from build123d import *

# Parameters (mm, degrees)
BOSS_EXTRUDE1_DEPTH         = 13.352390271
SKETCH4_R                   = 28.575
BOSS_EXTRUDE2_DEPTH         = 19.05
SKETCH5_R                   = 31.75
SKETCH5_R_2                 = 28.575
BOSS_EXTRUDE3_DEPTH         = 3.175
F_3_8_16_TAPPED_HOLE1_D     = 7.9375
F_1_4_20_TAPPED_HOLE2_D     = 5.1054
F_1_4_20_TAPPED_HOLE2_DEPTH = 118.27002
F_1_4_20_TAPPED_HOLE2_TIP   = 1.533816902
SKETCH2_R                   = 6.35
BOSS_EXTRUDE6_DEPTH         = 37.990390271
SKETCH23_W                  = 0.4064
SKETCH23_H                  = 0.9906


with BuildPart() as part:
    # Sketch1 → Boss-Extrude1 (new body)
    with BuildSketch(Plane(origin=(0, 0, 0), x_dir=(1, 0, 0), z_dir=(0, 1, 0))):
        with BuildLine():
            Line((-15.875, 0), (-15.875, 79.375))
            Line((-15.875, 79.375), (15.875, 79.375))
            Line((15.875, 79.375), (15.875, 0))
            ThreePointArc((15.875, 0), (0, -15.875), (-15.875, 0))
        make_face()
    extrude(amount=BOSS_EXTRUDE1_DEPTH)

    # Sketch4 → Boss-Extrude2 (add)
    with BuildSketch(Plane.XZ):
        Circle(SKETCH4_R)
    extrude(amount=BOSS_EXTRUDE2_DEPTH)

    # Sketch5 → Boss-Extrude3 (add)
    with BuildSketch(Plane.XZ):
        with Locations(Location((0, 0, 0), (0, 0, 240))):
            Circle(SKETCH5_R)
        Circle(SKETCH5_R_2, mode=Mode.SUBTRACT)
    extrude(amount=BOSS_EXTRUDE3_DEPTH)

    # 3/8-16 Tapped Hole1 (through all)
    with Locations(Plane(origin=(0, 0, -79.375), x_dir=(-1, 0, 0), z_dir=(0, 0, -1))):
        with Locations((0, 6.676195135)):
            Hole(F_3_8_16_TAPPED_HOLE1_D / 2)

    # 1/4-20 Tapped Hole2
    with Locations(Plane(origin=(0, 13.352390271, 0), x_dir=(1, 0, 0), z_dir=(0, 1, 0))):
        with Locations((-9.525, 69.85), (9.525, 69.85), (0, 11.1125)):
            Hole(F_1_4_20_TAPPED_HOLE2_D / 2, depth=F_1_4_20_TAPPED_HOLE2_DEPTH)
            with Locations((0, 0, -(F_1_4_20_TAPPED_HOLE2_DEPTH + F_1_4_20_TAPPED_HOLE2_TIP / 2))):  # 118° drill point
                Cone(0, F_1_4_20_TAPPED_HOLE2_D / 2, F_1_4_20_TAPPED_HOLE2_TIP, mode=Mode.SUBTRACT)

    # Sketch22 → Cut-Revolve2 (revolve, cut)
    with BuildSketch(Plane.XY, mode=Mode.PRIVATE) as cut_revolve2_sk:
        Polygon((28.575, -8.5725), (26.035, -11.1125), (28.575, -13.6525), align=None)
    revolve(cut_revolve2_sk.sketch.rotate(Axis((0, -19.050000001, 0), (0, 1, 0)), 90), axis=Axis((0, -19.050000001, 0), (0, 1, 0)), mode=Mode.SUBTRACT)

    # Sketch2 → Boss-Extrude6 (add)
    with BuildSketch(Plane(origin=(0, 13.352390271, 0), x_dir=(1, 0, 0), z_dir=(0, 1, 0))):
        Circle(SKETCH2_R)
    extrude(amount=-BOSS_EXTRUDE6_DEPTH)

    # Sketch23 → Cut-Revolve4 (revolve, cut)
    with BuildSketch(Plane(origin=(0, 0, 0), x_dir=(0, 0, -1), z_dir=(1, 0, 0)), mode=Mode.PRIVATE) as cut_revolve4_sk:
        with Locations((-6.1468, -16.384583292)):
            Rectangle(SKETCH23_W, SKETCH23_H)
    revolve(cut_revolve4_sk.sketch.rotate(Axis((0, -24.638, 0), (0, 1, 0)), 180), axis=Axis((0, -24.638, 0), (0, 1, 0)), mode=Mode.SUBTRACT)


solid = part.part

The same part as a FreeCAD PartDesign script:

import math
import FreeCAD as App
import Part
import Sketcher
Q = App.Units.Quantity

doc = App.newDocument("Part")
body = doc.addObject("PartDesign::Body", "Body")

# Sketch on XZ plane
sketch1 = doc.addObject("Sketcher::SketchObject", "Sketch")
body.addObject(sketch1)
sketch1.AttachmentSupport = (doc.XZ_Plane, [""])
sketch1.MapMode = "FlatFace"
sketch1.addGeometry(Part.LineSegment(App.Vector(-16, -79, 0), App.Vector(-16, 0, 0)), False)
sketch1.addGeometry(Part.ArcOfCircle(Part.Circle(App.Vector(0, 0, 0), App.Vector(0, 0, 1), 16), math.radians(0), math.radians(180)), False)
sketch1.addGeometry(Part.LineSegment(App.Vector(16, 0, 0), App.Vector(16, -79, 0)), False)
sketch1.addGeometry(Part.LineSegment(App.Vector(16, -79, 0), App.Vector(-16, -79, 0)), False)
sketch1.addConstraint(Sketcher.Constraint("Tangent", 0, 2, 1, 2))
sketch1.addConstraint(Sketcher.Constraint("Tangent", 1, 1, 2, 1))
sketch1.addConstraint(Sketcher.Constraint("Coincident", 2, 2, 3, 1))
sketch1.addConstraint(Sketcher.Constraint("Coincident", 3, 2, 0, 1))
sketch1.addConstraint(Sketcher.Constraint("Vertical", 0))
sketch1.addConstraint(Sketcher.Constraint("Vertical", 2))
sketch1.addConstraint(Sketcher.Constraint("Horizontal", 3))
sketch1.addConstraint(Sketcher.Constraint("Coincident", 1, 3, -1, 1))
sketch1.addConstraint(Sketcher.Constraint("Radius", 1, Q("0.625 in")))
sketch1.addConstraint(Sketcher.Constraint("DistanceY", 0, 1, 0, 2, Q("3.125 in")))
pad1 = doc.addObject("PartDesign::Pad", "Pad")
body.addObject(pad1)
pad1.Profile = sketch1
pad1.Length = 13.35239
pad1.Reversed = True

# Sketch on XZ plane
sketch2 = doc.addObject("Sketcher::SketchObject", "Sketch001")
body.addObject(sketch2)
sketch2.AttachmentSupport = (doc.XZ_Plane, [""])
sketch2.MapMode = "FlatFace"
sketch2.addGeometry(Part.Circle(App.Vector(0, 0, 0), App.Vector(0, 0, 1), 29), False)
sketch2.addConstraint(Sketcher.Constraint("Coincident", 0, 3, -1, 1))
sketch2.addConstraint(Sketcher.Constraint("Diameter", 0, Q("2.25 in")))
pad2 = doc.addObject("PartDesign::Pad", "Pad001")
body.addObject(pad2)
pad2.Profile = sketch2
pad2.Length = Q("0.75 in")

# Sketch on XZ plane
sketch3 = doc.addObject("Sketcher::SketchObject", "Sketch002")
body.addObject(sketch3)
sketch3.AttachmentSupport = (doc.XZ_Plane, [""])
sketch3.MapMode = "FlatFace"
sketch3.addGeometry(Part.Circle(App.Vector(0, 0, 0), App.Vector(0, 0, 1), 32), False)
sketch3.addGeometry(Part.Circle(App.Vector(0, 0, 0), App.Vector(0, 0, 1), 29), False)
sketch3.addConstraint(Sketcher.Constraint("Coincident", 0, 3, -1, 1))
sketch3.addConstraint(Sketcher.Constraint("Coincident", 1, 3, -1, 1))
sketch3.addConstraint(Sketcher.Constraint("Diameter", 0, Q("2.5 in")))
sketch3.addConstraint(Sketcher.Constraint("Diameter", 1, Q("2.25 in")))
pad3 = doc.addObject("PartDesign::Pad", "Pad002")
body.addObject(pad3)
pad3.Profile = sketch3
pad3.Length = Q("0.125 in")

# Sketch on XY plane
sketch4 = doc.addObject("Sketcher::SketchObject", "Sketch003")
body.addObject(sketch4)
sketch4.AttachmentSupport = (doc.XY_Plane, [""])
sketch4.MapMode = "FlatFace"
sketch4.AttachmentOffset = App.Placement(App.Vector(0, 0, -3.125 * 25.4), App.Rotation())
sketch4.addGeometry(Part.Circle(App.Vector(0, 6.7, 0), App.Vector(0, 0, 1), 4), False)
sketch4.addConstraint(Sketcher.Constraint("PointOnObject", 0, 3, -2))
sketch4.addConstraint(Sketcher.Constraint("Diameter", 0, Q("0.3125 in")))
sketch4.addConstraint(Sketcher.Constraint("DistanceY", -1, 1, 0, 3, 6.676195))
doc.recompute()
hole = doc.addObject("PartDesign::Hole", "Hole")
body.addObject(hole)
hole.Profile = sketch4
hole.ThreadType = "None"
hole.Diameter = Q("0.3125 in")
hole.DepthType = "ThroughAll"
hole.Reversed = True

# Sketch on XZ plane
sketch5 = doc.addObject("Sketcher::SketchObject", "Sketch004")
body.addObject(sketch5)
sketch5.AttachmentSupport = (doc.XZ_Plane, [""])
sketch5.MapMode = "FlatFace"
sketch5.AttachmentOffset = App.Placement(App.Vector(0, 0, -13.35239), App.Rotation())
sketch5.addGeometry(Part.Circle(App.Vector(-9.5, -69.8, 0), App.Vector(0, 0, 1), 2.6), False)
sketch5.addGeometry(Part.Circle(App.Vector(9.5, -69.8, 0), App.Vector(0, 0, 1), 2.6), False)
sketch5.addGeometry(Part.Circle(App.Vector(0, -11.1, 0), App.Vector(0, 0, 1), 2.6), False)
sketch5.addConstraint(Sketcher.Constraint("Equal", 0, 1))
sketch5.addConstraint(Sketcher.Constraint("Equal", 1, 2))
sketch5.addConstraint(Sketcher.Constraint("Symmetric", 0, 3, 1, 3, -2))
sketch5.addConstraint(Sketcher.Constraint("PointOnObject", 2, 3, -2))
sketch5.addConstraint(Sketcher.Constraint("Diameter", 0, Q("0.201 in")))
sketch5.addConstraint(Sketcher.Constraint("DistanceY", 0, 3, -1, 1, Q("2.75 in")))
sketch5.addConstraint(Sketcher.Constraint("DistanceX", 0, 3, 1, 3, Q("0.75 in")))
sketch5.addConstraint(Sketcher.Constraint("DistanceY", 2, 3, -1, 1, Q("0.4375 in")))
doc.recompute()
hole2 = doc.addObject("PartDesign::Hole", "Hole001")
body.addObject(hole2)
hole2.Profile = sketch5
hole2.ThreadType = "None"
hole2.Diameter = Q("0.201 in")
hole2.DepthType = "Dimension"
hole2.Depth = Q("4.6563 in")
hole2.DrillPoint = "Angled"
hole2.DrillPointAngle = 118
hole2.Reversed = True

# Sketch on XY plane
sketch6 = doc.addObject("Sketcher::SketchObject", "Sketch005")
body.addObject(sketch6)
sketch6.AttachmentSupport = (doc.XY_Plane, [""])
sketch6.MapMode = "FlatFace"
sketch6.addGeometry(Part.LineSegment(App.Vector(28.6, -8.6, 0), App.Vector(26, -11.1, 0)), False)
sketch6.addGeometry(Part.LineSegment(App.Vector(26, -11.1, 0), App.Vector(28.6, -13.7, 0)), False)
sketch6.addGeometry(Part.LineSegment(App.Vector(28.6, -13.7, 0), App.Vector(28.6, -8.6, 0)), False)
sketch6.addConstraint(Sketcher.Constraint("Coincident", 0, 2, 1, 1))
sketch6.addConstraint(Sketcher.Constraint("Coincident", 1, 2, 2, 1))
sketch6.addConstraint(Sketcher.Constraint("Coincident", 2, 2, 0, 1))
sketch6.addConstraint(Sketcher.Constraint("Vertical", 2))
sketch6.addConstraint(Sketcher.Constraint("Perpendicular", 0, 1))
sketch6.addConstraint(Sketcher.Constraint("Equal", 0, 1))
sketch6.addConstraint(Sketcher.Constraint("DistanceY", 2, 1, 2, 2, Q("0.2 in")))
sketch6.addConstraint(Sketcher.Constraint("DistanceX", -1, 1, 0, 2, Q("1.025 in")))
sketch6.addConstraint(Sketcher.Constraint("DistanceY", 0, 2, -1, 1, Q("0.4375 in")))
groove = doc.addObject("PartDesign::Groove", "Groove")
body.addObject(groove)
groove.Profile = sketch6
groove.ReferenceAxis = (sketch6, ["V_Axis"])
groove.Angle = 360

# Sketch on XZ plane
sketch7 = doc.addObject("Sketcher::SketchObject", "Sketch006")
body.addObject(sketch7)
sketch7.AttachmentSupport = (doc.XZ_Plane, [""])
sketch7.MapMode = "FlatFace"
sketch7.AttachmentOffset = App.Placement(App.Vector(0, 0, -13.35239), App.Rotation())
sketch7.addGeometry(Part.Circle(App.Vector(0, 0, 0), App.Vector(0, 0, 1), 6), False)
sketch7.addConstraint(Sketcher.Constraint("Coincident", 0, 3, -1, 1))
sketch7.addConstraint(Sketcher.Constraint("Diameter", 0, Q("0.5 in")))
pad4 = doc.addObject("PartDesign::Pad", "Pad003")
body.addObject(pad4)
pad4.Profile = sketch7
pad4.Length = 37.99039

# Sketch on YZ plane
sketch8 = doc.addObject("Sketcher::SketchObject", "Sketch007")
body.addObject(sketch8)
sketch8.AttachmentSupport = (doc.YZ_Plane, [""])
sketch8.MapMode = "FlatFace"
sketch8.addGeometry(Part.LineSegment(App.Vector(-15.89, 6.35, 0), App.Vector(-16.88, 6.35, 0)), False)
sketch8.addGeometry(Part.LineSegment(App.Vector(-16.88, 6.35, 0), App.Vector(-16.88, 5.94, 0)), False)
sketch8.addGeometry(Part.LineSegment(App.Vector(-16.88, 5.94, 0), App.Vector(-15.89, 5.94, 0)), False)
sketch8.addGeometry(Part.LineSegment(App.Vector(-15.89, 5.94, 0), App.Vector(-15.89, 6.35, 0)), False)
sketch8.addConstraint(Sketcher.Constraint("Coincident", 0, 2, 1, 1))
sketch8.addConstraint(Sketcher.Constraint("Coincident", 1, 2, 2, 1))
sketch8.addConstraint(Sketcher.Constraint("Coincident", 2, 2, 3, 1))
sketch8.addConstraint(Sketcher.Constraint("Coincident", 3, 2, 0, 1))
sketch8.addConstraint(Sketcher.Constraint("Horizontal", 0))
sketch8.addConstraint(Sketcher.Constraint("Vertical", 1))
sketch8.addConstraint(Sketcher.Constraint("Horizontal", 2))
sketch8.addConstraint(Sketcher.Constraint("Vertical", 3))
sketch8.addConstraint(Sketcher.Constraint("DistanceX", 0, 2, 0, 1, Q("0.039 in")))
sketch8.addConstraint(Sketcher.Constraint("DistanceY", 1, 2, 1, 1, Q("0.016 in")))
sketch8.addConstraint(Sketcher.Constraint("DistanceY", -1, 1, 0, 2, Q("0.25 in")))
sketch8.addConstraint(Sketcher.Constraint("DistanceX", 0, 2, -1, 1, 16.879883))
groove2 = doc.addObject("PartDesign::Groove", "Groove001")
body.addObject(groove2)
groove2.Profile = sketch8
groove2.ReferenceAxis = (sketch8, ["H_Axis"])
groove2.Angle = 360

doc.recompute()
